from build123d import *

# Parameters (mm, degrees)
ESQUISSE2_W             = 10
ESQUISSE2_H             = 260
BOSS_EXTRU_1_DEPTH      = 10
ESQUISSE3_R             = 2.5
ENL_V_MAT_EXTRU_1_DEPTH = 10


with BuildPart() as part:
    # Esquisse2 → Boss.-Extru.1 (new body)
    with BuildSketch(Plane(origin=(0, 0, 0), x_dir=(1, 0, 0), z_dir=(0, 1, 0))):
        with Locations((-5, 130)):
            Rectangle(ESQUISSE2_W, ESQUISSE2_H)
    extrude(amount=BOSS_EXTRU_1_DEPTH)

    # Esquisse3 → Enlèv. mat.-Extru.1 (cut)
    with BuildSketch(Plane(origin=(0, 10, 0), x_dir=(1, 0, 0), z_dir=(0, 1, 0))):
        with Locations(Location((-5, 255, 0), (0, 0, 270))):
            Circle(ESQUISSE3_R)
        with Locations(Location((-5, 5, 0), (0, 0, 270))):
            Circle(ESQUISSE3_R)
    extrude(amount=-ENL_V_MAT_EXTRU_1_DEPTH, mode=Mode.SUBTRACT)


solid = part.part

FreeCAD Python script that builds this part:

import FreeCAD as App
import Part
import Sketcher


def add_polygon(sketch, points):
    """Adds a closed chain of lines whose ends are joined by coincident constraints."""
    first, n = sketch.GeometryCount, len(points)
    for a, b in zip(points, points[1:] + points[:1]):
        sketch.addGeometry(Part.LineSegment(App.Vector(*a, 0), App.Vector(*b, 0)), False)
    for i in range(n):
        sketch.addConstraint(Sketcher.Constraint("Coincident", first + i, 2, first + (i + 1) % n, 1))

doc = App.newDocument("Part")
body = doc.addObject("PartDesign::Body", "Body")

# Sketch on XZ plane
sketch1 = body.newObject("Sketcher::SketchObject", "Sketch")
sketch1.AttachmentSupport = (doc.getObject("XZ_Plane"), [""])
sketch1.MapMode = "FlatFace"
add_polygon(sketch1, [(-10, -260), (-10, 0), (0, 0), (0, -260)])  # lines 0-3
sketch1.addConstraint([
    Sketcher.Constraint("Vertical", 0),
    Sketcher.Constraint("Horizontal", 1),
    Sketcher.Constraint("Vertical", 2),
    Sketcher.Constraint("Horizontal", 3),
    Sketcher.Constraint("Coincident", 1, 2, -1, 1),
    Sketcher.Constraint("DistanceX", 1, 1, 1, 2, 10.0),
    Sketcher.Constraint("DistanceY", 0, 1, 0, 2, 260.0),
])
pad1 = body.newObject("PartDesign::Pad", "Pad")
pad1.Profile = sketch1
pad1.Length = 10
pad1.Reversed = True

# Sketch on XZ plane
sketch2 = body.newObject("Sketcher::SketchObject", "Sketch001")
sketch2.AttachmentSupport = (doc.getObject("XZ_Plane"), [""])
sketch2.MapMode = "FlatFace"
sketch2.AttachmentOffset = App.Placement(App.Vector(0, 0, -10), App.Rotation())
sketch2.addGeometry([
    Part.Circle(App.Vector(-5, -255, 0), App.Vector(0, 0, 1), 2.5),
    Part.Circle(App.Vector(-5, -5, 0), App.Vector(0, 0, 1), 2.5),
], False)
sketch2.addConstraint([
    Sketcher.Constraint("Equal", 0, 1),
    Sketcher.Constraint("Vertical", 0, 3, 1, 3),
    Sketcher.Constraint("Diameter", 0, 5.0),
    Sketcher.Constraint("DistanceX", 0, 3, -1, 1, 5.0),
    Sketcher.Constraint("DistanceY", 0, 3, -1, 1, 255.0),
    Sketcher.Constraint("DistanceY", 1, 3, -1, 1, 5.0),
])
pocket1 = body.newObject("PartDesign::Pocket", "Pocket")
pocket1.Profile = sketch2
pocket1.Length = 10
pocket1.Reversed = True

doc.recompute()
